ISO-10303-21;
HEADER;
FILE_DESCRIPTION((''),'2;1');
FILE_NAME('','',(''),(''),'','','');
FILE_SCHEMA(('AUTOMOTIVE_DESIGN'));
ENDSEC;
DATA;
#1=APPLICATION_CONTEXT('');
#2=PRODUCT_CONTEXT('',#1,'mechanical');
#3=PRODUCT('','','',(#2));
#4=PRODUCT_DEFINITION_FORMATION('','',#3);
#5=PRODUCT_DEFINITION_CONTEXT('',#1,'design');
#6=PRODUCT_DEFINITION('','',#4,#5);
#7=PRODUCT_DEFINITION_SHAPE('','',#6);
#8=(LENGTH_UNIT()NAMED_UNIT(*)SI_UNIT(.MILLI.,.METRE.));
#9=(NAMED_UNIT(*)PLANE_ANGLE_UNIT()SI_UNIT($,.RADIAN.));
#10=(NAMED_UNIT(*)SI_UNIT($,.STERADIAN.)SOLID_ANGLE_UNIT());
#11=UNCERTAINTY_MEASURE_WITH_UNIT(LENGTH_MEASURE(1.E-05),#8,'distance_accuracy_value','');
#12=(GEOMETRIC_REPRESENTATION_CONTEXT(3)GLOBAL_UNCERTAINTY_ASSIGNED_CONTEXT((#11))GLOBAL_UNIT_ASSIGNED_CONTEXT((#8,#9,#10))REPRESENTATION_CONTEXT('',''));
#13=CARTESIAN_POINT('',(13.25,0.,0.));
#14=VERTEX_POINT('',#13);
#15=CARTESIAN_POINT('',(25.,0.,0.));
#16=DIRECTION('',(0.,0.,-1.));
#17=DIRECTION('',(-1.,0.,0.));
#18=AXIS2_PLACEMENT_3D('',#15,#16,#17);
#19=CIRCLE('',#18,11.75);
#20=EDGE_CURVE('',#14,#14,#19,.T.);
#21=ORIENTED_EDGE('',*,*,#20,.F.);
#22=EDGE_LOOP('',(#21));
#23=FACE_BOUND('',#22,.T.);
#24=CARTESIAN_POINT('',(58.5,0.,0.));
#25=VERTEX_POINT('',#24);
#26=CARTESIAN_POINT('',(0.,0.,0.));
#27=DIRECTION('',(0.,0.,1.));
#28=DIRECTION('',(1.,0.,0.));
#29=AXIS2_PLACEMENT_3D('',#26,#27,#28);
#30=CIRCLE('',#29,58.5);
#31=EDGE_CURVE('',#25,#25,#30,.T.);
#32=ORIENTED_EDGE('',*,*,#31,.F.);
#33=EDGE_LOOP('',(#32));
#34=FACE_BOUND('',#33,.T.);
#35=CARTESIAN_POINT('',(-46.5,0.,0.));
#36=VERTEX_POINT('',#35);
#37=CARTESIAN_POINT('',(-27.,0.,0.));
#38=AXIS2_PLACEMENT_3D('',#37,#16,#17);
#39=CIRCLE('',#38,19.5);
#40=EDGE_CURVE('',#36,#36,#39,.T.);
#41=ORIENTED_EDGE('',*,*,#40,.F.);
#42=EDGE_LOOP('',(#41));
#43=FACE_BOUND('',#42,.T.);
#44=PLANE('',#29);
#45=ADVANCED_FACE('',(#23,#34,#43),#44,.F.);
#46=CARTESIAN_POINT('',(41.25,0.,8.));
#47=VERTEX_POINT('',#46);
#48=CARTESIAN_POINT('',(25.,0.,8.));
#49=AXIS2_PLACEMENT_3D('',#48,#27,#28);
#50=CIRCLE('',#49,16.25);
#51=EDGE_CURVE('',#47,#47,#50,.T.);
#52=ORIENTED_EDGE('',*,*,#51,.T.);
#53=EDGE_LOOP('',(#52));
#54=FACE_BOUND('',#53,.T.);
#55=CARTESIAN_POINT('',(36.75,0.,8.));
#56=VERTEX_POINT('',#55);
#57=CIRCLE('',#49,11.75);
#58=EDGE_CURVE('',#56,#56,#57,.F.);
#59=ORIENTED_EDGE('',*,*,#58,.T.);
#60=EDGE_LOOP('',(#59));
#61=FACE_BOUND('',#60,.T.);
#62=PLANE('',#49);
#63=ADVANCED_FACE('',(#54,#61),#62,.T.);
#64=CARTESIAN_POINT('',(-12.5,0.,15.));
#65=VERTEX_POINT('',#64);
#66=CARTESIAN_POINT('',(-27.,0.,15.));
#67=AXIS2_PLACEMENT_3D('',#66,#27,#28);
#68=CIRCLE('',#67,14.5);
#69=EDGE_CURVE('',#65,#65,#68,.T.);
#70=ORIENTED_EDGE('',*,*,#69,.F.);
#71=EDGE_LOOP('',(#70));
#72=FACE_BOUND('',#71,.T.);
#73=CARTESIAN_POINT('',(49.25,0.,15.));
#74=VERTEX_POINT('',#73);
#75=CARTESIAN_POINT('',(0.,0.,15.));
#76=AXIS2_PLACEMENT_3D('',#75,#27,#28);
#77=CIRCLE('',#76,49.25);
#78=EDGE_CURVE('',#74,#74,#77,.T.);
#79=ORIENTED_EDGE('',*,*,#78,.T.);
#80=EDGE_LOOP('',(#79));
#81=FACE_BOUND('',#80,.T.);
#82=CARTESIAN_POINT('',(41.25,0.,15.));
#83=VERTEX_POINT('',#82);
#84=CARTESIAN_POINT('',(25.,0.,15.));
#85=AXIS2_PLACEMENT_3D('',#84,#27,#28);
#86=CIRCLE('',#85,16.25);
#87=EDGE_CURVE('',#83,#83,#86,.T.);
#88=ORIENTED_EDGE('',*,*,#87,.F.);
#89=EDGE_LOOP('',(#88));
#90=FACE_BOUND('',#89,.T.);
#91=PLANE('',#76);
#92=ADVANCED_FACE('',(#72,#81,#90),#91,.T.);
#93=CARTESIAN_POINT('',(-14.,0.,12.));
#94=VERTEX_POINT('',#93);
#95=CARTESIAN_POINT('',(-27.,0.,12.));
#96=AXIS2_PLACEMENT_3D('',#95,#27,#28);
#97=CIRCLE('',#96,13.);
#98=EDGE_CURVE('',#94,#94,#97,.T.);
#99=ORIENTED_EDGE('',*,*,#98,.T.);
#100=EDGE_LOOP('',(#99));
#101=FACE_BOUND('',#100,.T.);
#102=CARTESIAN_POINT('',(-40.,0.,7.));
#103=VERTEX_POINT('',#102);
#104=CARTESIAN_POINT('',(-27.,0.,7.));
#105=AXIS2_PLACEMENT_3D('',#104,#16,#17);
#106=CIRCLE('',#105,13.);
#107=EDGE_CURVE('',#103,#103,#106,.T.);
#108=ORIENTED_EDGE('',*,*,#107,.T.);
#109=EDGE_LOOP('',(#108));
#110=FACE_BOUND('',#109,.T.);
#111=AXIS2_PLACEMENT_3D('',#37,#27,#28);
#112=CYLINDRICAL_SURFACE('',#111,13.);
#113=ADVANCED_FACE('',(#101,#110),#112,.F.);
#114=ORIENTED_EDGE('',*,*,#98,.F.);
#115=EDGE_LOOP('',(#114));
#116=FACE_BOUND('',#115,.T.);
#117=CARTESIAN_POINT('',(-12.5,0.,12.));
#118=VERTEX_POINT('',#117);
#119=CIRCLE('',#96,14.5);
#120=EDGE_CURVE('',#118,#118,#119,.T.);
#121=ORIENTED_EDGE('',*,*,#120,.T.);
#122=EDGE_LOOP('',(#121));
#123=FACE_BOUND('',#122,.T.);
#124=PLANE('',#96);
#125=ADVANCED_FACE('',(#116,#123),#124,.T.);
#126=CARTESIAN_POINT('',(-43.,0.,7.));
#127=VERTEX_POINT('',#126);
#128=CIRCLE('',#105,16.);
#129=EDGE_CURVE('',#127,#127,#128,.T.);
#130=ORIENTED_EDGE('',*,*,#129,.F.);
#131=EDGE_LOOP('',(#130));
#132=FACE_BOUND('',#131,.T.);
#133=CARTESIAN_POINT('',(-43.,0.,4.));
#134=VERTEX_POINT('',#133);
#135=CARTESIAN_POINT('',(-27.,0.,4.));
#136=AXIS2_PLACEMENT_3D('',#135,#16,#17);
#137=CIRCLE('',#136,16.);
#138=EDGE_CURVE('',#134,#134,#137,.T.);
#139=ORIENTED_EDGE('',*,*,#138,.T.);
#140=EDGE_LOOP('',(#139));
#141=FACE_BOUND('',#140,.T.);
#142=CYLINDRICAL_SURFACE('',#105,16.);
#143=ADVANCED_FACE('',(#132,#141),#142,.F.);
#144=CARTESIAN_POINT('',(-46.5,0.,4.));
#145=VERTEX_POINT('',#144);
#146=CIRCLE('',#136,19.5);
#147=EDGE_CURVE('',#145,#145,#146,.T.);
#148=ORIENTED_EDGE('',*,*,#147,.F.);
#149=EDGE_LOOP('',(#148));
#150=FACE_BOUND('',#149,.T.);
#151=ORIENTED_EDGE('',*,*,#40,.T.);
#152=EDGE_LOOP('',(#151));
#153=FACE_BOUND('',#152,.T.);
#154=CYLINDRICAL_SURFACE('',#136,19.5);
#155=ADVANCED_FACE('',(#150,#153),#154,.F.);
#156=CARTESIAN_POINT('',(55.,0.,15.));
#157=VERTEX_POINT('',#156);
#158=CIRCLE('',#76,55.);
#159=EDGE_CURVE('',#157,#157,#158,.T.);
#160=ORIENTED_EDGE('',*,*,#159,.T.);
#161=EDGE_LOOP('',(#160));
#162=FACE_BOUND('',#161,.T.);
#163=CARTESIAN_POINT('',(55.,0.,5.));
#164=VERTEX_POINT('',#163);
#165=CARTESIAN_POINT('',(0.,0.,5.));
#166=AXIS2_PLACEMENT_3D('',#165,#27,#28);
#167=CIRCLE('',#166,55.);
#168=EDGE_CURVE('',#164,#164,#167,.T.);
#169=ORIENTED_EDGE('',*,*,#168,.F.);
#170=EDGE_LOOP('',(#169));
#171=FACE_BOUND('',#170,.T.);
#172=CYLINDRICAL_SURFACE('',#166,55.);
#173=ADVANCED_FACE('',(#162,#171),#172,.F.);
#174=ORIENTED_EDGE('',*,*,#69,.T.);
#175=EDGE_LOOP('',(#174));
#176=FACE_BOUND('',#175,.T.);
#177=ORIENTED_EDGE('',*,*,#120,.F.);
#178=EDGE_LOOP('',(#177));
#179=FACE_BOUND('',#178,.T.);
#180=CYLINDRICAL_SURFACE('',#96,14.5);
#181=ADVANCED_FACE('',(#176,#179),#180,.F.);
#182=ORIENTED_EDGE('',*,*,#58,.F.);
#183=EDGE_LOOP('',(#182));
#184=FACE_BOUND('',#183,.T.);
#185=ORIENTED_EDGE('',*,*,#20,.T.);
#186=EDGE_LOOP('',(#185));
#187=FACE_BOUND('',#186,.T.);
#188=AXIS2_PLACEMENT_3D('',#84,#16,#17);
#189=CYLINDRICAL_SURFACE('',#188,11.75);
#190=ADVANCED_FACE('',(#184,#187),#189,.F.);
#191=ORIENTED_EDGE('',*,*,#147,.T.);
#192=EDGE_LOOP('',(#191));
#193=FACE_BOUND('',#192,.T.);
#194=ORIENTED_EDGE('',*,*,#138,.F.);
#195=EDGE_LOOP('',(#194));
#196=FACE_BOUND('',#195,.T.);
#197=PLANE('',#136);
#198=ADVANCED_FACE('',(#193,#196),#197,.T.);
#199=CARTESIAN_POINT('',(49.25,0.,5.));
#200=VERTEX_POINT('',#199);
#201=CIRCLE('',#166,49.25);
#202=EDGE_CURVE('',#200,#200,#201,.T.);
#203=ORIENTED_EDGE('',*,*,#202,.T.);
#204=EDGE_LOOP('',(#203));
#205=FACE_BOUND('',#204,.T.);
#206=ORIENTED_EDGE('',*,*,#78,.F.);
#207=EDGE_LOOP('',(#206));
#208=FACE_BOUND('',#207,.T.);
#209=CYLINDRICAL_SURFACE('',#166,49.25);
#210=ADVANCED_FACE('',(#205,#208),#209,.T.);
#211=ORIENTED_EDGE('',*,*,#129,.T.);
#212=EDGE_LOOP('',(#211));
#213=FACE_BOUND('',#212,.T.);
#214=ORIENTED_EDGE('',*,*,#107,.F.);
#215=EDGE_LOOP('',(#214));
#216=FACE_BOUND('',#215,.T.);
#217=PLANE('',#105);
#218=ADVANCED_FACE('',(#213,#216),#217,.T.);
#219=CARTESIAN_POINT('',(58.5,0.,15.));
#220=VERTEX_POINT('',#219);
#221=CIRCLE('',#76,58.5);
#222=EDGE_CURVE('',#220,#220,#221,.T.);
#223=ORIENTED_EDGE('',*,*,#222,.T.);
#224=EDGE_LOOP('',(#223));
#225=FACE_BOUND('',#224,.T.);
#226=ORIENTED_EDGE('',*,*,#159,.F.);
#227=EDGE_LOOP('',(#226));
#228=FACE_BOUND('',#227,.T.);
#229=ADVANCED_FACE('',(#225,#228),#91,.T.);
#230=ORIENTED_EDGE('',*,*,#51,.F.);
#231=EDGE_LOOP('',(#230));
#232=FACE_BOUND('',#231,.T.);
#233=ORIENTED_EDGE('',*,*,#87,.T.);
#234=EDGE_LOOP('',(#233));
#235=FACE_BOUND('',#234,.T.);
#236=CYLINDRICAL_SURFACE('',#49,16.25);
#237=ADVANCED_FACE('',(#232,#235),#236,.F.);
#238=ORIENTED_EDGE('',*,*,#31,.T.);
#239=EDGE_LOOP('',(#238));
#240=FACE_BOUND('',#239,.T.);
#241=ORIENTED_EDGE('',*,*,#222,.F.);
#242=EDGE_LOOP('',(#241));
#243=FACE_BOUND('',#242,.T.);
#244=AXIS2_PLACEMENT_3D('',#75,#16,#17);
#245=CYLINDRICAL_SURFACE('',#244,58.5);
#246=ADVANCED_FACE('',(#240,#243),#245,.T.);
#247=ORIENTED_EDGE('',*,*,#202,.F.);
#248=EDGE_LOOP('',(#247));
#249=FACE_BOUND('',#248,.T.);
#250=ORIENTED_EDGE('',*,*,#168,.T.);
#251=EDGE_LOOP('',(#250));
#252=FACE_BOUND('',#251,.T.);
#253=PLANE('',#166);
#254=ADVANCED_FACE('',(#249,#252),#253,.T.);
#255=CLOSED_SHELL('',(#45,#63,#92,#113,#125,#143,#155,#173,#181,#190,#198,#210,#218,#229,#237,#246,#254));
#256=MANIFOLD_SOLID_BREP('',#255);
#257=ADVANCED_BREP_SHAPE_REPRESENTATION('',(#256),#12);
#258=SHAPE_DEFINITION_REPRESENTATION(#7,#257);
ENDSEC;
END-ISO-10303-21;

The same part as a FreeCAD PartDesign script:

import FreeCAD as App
import Part
import Sketcher
from FreeCAD import Vector
Q = App.Units.Quantity

doc = App.newDocument("Part")
body = doc.addObject("PartDesign::Body", "Body")

sketch1 = doc.addObject("Sketcher::SketchObject", "Sketch")
body.addObject(sketch1)
sketch1.AttachmentSupport = (doc.XY_Plane, [""])
sketch1.MapMode = "FlatFace"
sketch1.addGeometry(Part.Circle(Vector(0, 0, 0), Vector(0, 0, 1), 58), False)
sketch1.addConstraint([
    Sketcher.Constraint("Coincident", 0, 3, -1, 1),
    Sketcher.Constraint("Diameter", 0, Q("117 mm")),
])
pad1 = doc.addObject("PartDesign::Pad", "Pad")
body.addObject(pad1)
pad1.Profile = sketch1
pad1.Length = 15

sketch2 = doc.addObject("Sketcher::SketchObject", "Sketch001")
body.addObject(sketch2)
sketch2.AttachmentSupport = (doc.XY_Plane, [""])
sketch2.MapMode = "FlatFace"
sketch2.AttachmentOffset = App.Placement(Vector(0, 0, 15), App.Rotation())
sketch2.addGeometry([
    Part.Circle(Vector(0, 0, 0), Vector(0, 0, 1), 55),
    Part.Circle(Vector(0, 0, 0), Vector(0, 0, 1), 49),
], False)
sketch2.addConstraint([
    Sketcher.Constraint("Coincident", 0, 3, -1, 1),
    Sketcher.Constraint("Coincident", 1, 3, -1, 1),
    Sketcher.Constraint("Diameter", 0, Q("110 mm")),
    Sketcher.Constraint("Diameter", 1, Q("98.5 mm")),
])
pocket1 = doc.addObject("PartDesign::Pocket", "Pocket")
body.addObject(pocket1)
pocket1.Profile = sketch2
pocket1.Length = 10

sketch3 = doc.addObject("Sketcher::SketchObject", "Sketch002")
body.addObject(sketch3)
sketch3.AttachmentSupport = (doc.XY_Plane, [""])
sketch3.MapMode = "FlatFace"
sketch3.addGeometry(Part.Circle(Vector(25, 0, 0), Vector(0, 0, 1), 12), False)
sketch3.addConstraint([
    Sketcher.Constraint("PointOnObject", 0, 3, -1),
    Sketcher.Constraint("Diameter", 0, Q("23.5 mm")),
    Sketcher.Constraint("DistanceX", -1, 1, 0, 3, Q("25 mm")),
])
pocket2 = doc.addObject("PartDesign::Pocket", "Pocket001")
body.addObject(pocket2)
pocket2.Profile = sketch3
pocket2.Type = "ThroughAll"
pocket2.Reversed = True

sketch4 = doc.addObject("Sketcher::SketchObject", "Sketch003")
body.addObject(sketch4)
sketch4.AttachmentSupport = (doc.XY_Plane, [""])
sketch4.MapMode = "FlatFace"
sketch4.AttachmentOffset = App.Placement(Vector(0, 0, 15), App.Rotation())
sketch4.addGeometry(Part.Circle(Vector(25, 0, 0), Vector(0, 0, 1), 16), False)
sketch4.addConstraint([
    Sketcher.Constraint("PointOnObject", 0, 3, -1),
    Sketcher.Constraint("Diameter", 0, Q("32.5 mm")),
    Sketcher.Constraint("DistanceX", -1, 1, 0, 3, Q("25 mm")),
])
pocket3 = doc.addObject("PartDesign::Pocket", "Pocket002")
body.addObject(pocket3)
pocket3.Profile = sketch4
pocket3.Length = 7

sketch5 = doc.addObject("Sketcher::SketchObject", "Sketch004")
body.addObject(sketch5)
sketch5.AttachmentSupport = (doc.XY_Plane, [""])
sketch5.MapMode = "FlatFace"
sketch5.addGeometry(Part.Circle(Vector(-27, 0, 0), Vector(0, 0, 1), 20), False)
sketch5.addConstraint([
    Sketcher.Constraint("PointOnObject", 0, 3, -1),
    Sketcher.Constraint("Diameter", 0, Q("39 mm")),
    Sketcher.Constraint("DistanceX", 0, 3, -1, 1, Q("27 mm")),
])
pocket4 = doc.addObject("PartDesign::Pocket", "Pocket003")
body.addObject(pocket4)
pocket4.Profile = sketch5
pocket4.Length = 4
pocket4.Reversed = True

sketch6 = doc.addObject("Sketcher::SketchObject", "Sketch005")
body.addObject(sketch6)
sketch6.AttachmentSupport = (doc.XY_Plane, [""])
sketch6.MapMode = "FlatFace"
sketch6.AttachmentOffset = App.Placement(Vector(0, 0, 4), App.Rotation())
sketch6.addGeometry(Part.Circle(Vector(-27, 0, 0), Vector(0, 0, 1), 16), False)
sketch6.addConstraint([
    Sketcher.Constraint("PointOnObject", 0, 3, -1),
    Sketcher.Constraint("Diameter", 0, Q("32 mm")),
    Sketcher.Constraint("DistanceX", 0, 3, -1, 1, Q("27 mm")),
])
pocket5 = doc.addObject("PartDesign::Pocket", "Pocket004")
body.addObject(pocket5)
pocket5.Profile = sketch6
pocket5.Length = 3
pocket5.Reversed = True

sketch7 = doc.addObject("Sketcher::SketchObject", "Sketch006")
body.addObject(sketch7)
sketch7.AttachmentSupport = (doc.XY_Plane, [""])
sketch7.MapMode = "FlatFace"
sketch7.AttachmentOffset = App.Placement(Vector(0, 0, 15), App.Rotation())
sketch7.addGeometry(Part.Circle(Vector(-27, 0, 0), Vector(0, 0, 1), 14), False)
sketch7.addConstraint([
    Sketcher.Constraint("PointOnObject", 0, 3, -1),
    Sketcher.Constraint("Diameter", 0, Q("29 mm")),
    Sketcher.Constraint("DistanceX", 0, 3, -1, 1, Q("27 mm")),
])
pocket6 = doc.addObject("PartDesign::Pocket", "Pocket005")
body.addObject(pocket6)
pocket6.Profile = sketch7
pocket6.Length = 3

sketch8 = doc.addObject("Sketcher::SketchObject", "Sketch007")
body.addObject(sketch8)
sketch8.AttachmentSupport = (doc.XY_Plane, [""])
sketch8.MapMode = "FlatFace"
sketch8.AttachmentOffset = App.Placement(Vector(0, 0, 12), App.Rotation())
sketch8.addGeometry(Part.Circle(Vector(-27, 0, 0), Vector(0, 0, 1), 13), False)
sketch8.addConstraint([
    Sketcher.Constraint("PointOnObject", 0, 3, -1),
    Sketcher.Constraint("Diameter", 0, Q("26 mm")),
    Sketcher.Constraint("DistanceX", 0, 3, -1, 1, Q("27 mm")),
])
pocket7 = doc.addObject("PartDesign::Pocket", "Pocket006")
body.addObject(pocket7)
pocket7.Profile = sketch8
pocket7.Type = "ThroughAll"

doc.recompute()
